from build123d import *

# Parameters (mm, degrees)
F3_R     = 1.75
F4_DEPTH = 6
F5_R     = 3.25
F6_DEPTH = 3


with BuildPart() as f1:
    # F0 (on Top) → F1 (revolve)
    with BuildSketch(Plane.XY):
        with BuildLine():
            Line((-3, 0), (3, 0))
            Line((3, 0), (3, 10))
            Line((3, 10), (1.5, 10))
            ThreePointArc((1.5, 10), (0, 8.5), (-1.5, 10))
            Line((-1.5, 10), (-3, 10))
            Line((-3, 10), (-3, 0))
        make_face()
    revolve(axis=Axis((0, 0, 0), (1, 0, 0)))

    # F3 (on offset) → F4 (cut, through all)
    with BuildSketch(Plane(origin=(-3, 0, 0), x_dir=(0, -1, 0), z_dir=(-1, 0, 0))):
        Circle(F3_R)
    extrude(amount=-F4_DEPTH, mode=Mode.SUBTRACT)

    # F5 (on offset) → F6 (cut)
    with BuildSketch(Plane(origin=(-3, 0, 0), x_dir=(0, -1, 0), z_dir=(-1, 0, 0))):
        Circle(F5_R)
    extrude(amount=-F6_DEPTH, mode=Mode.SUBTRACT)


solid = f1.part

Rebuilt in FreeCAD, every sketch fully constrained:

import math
import FreeCAD as App
import Part
import Sketcher
Q = App.Units.Quantity

doc = App.newDocument("Part")
body = doc.addObject("PartDesign::Body", "Body")

sketch1 = body.newObject("Sketcher::SketchObject", "Sketch")
sketch1.AttachmentSupport = (doc.getObject("XY_Plane"), [""])
sketch1.MapMode = "FlatFace"
sketch1.addGeometry(Part.LineSegment(App.Vector(-3, 0, 0), App.Vector(3, 0, 0)), False)
sketch1.addGeometry(Part.LineSegment(App.Vector(3, 0, 0), App.Vector(3, 10, 0)), False)
sketch1.addGeometry(Part.LineSegment(App.Vector(3, 10, 0), App.Vector(1.5, 10, 0)), False)
sketch1.addGeometry(Part.ArcOfCircle(Part.Circle(App.Vector(0, 10, 0), App.Vector(0, 0, 1), 1.5), math.radians(180), math.radians(360)), False)
sketch1.addGeometry(Part.LineSegment(App.Vector(-1.5, 10, 0), App.Vector(-3, 10, 0)), False)
sketch1.addGeometry(Part.LineSegment(App.Vector(-3, 10, 0), App.Vector(-3, 0, 0)), False)
sketch1.addConstraint(Sketcher.Constraint("Coincident", 0, 2, 1, 1))
sketch1.addConstraint(Sketcher.Constraint("Coincident", 1, 2, 2, 1))
sketch1.addConstraint(Sketcher.Constraint("Coincident", 2, 2, 3, 2))
sketch1.addConstraint(Sketcher.Constraint("Coincident", 3, 1, 4, 1))
sketch1.addConstraint(Sketcher.Constraint("Coincident", 4, 2, 5, 1))
sketch1.addConstraint(Sketcher.Constraint("Coincident", 5, 2, 0, 1))
sketch1.addConstraint(Sketcher.Constraint("Horizontal", 0))
sketch1.addConstraint(Sketcher.Constraint("Vertical", 1))
sketch1.addConstraint(Sketcher.Constraint("Horizontal", 2))
sketch1.addConstraint(Sketcher.Constraint("Horizontal", 4))
sketch1.addConstraint(Sketcher.Constraint("Vertical", 5))
sketch1.addConstraint(Sketcher.Constraint("Symmetric", 0, 2, 5, 2, -1, 1))
sketch1.addConstraint(Sketcher.Constraint("Symmetric", 2, 2, 3, 1, -2))
sketch1.addConstraint(Sketcher.Constraint("Horizontal", 3, 3, 1, 2))
sketch1.addConstraint(Sketcher.Constraint("Radius", 3, Q("1.5 mm")))
sketch1.addConstraint(Sketcher.Constraint("DistanceX", 0, 1, 0, 2, Q("6 mm")))
sketch1.addConstraint(Sketcher.Constraint("DistanceY", 1, 1, 1, 2, Q("10 mm")))
revolution = body.newObject("PartDesign::Revolution", "Revolution")
revolution.Profile = sketch1
revolution.ReferenceAxis = (sketch1, ["H_Axis"])
revolution.Angle = 360

sketch2 = body.newObject("Sketcher::SketchObject", "Sketch001")
sketch2.AttachmentSupport = (doc.getObject("YZ_Plane"), [""])
sketch2.MapMode = "FlatFace"
sketch2.AttachmentOffset = App.Placement(App.Vector(0, 0, -3), App.Rotation())
sketch2.addGeometry(Part.Circle(App.Vector(0, 0, 0), App.Vector(0, 0, 1), 1.8), False)
sketch2.addConstraint(Sketcher.Constraint("Coincident", 0, 3, -1, 1))
sketch2.addConstraint(Sketcher.Constraint("Diameter", 0, Q("3.5 mm")))
pocket1 = body.newObject("PartDesign::Pocket", "Pocket")
pocket1.Profile = sketch2
pocket1.Type = "ThroughAll"
pocket1.Reversed = True

sketch3 = body.newObject("Sketcher::SketchObject", "Sketch002")
sketch3.AttachmentSupport = (doc.getObject("YZ_Plane"), [""])
sketch3.MapMode = "FlatFace"
sketch3.AttachmentOffset = App.Placement(App.Vector(0, 0, -3), App.Rotation())
sketch3.addGeometry(Part.Circle(App.Vector(0, 0, 0), App.Vector(0, 0, 1), 3.2), False)
sketch3.addConstraint(Sketcher.Constraint("Coincident", 0, 3, -1, 1))
sketch3.addConstraint(Sketcher.Constraint("Diameter", 0, Q("6.5 mm")))
pocket2 = body.newObject("PartDesign::Pocket", "Pocket001")
pocket2.Profile = sketch3
pocket2.Length = 3
pocket2.Reversed = True

doc.recompute()
